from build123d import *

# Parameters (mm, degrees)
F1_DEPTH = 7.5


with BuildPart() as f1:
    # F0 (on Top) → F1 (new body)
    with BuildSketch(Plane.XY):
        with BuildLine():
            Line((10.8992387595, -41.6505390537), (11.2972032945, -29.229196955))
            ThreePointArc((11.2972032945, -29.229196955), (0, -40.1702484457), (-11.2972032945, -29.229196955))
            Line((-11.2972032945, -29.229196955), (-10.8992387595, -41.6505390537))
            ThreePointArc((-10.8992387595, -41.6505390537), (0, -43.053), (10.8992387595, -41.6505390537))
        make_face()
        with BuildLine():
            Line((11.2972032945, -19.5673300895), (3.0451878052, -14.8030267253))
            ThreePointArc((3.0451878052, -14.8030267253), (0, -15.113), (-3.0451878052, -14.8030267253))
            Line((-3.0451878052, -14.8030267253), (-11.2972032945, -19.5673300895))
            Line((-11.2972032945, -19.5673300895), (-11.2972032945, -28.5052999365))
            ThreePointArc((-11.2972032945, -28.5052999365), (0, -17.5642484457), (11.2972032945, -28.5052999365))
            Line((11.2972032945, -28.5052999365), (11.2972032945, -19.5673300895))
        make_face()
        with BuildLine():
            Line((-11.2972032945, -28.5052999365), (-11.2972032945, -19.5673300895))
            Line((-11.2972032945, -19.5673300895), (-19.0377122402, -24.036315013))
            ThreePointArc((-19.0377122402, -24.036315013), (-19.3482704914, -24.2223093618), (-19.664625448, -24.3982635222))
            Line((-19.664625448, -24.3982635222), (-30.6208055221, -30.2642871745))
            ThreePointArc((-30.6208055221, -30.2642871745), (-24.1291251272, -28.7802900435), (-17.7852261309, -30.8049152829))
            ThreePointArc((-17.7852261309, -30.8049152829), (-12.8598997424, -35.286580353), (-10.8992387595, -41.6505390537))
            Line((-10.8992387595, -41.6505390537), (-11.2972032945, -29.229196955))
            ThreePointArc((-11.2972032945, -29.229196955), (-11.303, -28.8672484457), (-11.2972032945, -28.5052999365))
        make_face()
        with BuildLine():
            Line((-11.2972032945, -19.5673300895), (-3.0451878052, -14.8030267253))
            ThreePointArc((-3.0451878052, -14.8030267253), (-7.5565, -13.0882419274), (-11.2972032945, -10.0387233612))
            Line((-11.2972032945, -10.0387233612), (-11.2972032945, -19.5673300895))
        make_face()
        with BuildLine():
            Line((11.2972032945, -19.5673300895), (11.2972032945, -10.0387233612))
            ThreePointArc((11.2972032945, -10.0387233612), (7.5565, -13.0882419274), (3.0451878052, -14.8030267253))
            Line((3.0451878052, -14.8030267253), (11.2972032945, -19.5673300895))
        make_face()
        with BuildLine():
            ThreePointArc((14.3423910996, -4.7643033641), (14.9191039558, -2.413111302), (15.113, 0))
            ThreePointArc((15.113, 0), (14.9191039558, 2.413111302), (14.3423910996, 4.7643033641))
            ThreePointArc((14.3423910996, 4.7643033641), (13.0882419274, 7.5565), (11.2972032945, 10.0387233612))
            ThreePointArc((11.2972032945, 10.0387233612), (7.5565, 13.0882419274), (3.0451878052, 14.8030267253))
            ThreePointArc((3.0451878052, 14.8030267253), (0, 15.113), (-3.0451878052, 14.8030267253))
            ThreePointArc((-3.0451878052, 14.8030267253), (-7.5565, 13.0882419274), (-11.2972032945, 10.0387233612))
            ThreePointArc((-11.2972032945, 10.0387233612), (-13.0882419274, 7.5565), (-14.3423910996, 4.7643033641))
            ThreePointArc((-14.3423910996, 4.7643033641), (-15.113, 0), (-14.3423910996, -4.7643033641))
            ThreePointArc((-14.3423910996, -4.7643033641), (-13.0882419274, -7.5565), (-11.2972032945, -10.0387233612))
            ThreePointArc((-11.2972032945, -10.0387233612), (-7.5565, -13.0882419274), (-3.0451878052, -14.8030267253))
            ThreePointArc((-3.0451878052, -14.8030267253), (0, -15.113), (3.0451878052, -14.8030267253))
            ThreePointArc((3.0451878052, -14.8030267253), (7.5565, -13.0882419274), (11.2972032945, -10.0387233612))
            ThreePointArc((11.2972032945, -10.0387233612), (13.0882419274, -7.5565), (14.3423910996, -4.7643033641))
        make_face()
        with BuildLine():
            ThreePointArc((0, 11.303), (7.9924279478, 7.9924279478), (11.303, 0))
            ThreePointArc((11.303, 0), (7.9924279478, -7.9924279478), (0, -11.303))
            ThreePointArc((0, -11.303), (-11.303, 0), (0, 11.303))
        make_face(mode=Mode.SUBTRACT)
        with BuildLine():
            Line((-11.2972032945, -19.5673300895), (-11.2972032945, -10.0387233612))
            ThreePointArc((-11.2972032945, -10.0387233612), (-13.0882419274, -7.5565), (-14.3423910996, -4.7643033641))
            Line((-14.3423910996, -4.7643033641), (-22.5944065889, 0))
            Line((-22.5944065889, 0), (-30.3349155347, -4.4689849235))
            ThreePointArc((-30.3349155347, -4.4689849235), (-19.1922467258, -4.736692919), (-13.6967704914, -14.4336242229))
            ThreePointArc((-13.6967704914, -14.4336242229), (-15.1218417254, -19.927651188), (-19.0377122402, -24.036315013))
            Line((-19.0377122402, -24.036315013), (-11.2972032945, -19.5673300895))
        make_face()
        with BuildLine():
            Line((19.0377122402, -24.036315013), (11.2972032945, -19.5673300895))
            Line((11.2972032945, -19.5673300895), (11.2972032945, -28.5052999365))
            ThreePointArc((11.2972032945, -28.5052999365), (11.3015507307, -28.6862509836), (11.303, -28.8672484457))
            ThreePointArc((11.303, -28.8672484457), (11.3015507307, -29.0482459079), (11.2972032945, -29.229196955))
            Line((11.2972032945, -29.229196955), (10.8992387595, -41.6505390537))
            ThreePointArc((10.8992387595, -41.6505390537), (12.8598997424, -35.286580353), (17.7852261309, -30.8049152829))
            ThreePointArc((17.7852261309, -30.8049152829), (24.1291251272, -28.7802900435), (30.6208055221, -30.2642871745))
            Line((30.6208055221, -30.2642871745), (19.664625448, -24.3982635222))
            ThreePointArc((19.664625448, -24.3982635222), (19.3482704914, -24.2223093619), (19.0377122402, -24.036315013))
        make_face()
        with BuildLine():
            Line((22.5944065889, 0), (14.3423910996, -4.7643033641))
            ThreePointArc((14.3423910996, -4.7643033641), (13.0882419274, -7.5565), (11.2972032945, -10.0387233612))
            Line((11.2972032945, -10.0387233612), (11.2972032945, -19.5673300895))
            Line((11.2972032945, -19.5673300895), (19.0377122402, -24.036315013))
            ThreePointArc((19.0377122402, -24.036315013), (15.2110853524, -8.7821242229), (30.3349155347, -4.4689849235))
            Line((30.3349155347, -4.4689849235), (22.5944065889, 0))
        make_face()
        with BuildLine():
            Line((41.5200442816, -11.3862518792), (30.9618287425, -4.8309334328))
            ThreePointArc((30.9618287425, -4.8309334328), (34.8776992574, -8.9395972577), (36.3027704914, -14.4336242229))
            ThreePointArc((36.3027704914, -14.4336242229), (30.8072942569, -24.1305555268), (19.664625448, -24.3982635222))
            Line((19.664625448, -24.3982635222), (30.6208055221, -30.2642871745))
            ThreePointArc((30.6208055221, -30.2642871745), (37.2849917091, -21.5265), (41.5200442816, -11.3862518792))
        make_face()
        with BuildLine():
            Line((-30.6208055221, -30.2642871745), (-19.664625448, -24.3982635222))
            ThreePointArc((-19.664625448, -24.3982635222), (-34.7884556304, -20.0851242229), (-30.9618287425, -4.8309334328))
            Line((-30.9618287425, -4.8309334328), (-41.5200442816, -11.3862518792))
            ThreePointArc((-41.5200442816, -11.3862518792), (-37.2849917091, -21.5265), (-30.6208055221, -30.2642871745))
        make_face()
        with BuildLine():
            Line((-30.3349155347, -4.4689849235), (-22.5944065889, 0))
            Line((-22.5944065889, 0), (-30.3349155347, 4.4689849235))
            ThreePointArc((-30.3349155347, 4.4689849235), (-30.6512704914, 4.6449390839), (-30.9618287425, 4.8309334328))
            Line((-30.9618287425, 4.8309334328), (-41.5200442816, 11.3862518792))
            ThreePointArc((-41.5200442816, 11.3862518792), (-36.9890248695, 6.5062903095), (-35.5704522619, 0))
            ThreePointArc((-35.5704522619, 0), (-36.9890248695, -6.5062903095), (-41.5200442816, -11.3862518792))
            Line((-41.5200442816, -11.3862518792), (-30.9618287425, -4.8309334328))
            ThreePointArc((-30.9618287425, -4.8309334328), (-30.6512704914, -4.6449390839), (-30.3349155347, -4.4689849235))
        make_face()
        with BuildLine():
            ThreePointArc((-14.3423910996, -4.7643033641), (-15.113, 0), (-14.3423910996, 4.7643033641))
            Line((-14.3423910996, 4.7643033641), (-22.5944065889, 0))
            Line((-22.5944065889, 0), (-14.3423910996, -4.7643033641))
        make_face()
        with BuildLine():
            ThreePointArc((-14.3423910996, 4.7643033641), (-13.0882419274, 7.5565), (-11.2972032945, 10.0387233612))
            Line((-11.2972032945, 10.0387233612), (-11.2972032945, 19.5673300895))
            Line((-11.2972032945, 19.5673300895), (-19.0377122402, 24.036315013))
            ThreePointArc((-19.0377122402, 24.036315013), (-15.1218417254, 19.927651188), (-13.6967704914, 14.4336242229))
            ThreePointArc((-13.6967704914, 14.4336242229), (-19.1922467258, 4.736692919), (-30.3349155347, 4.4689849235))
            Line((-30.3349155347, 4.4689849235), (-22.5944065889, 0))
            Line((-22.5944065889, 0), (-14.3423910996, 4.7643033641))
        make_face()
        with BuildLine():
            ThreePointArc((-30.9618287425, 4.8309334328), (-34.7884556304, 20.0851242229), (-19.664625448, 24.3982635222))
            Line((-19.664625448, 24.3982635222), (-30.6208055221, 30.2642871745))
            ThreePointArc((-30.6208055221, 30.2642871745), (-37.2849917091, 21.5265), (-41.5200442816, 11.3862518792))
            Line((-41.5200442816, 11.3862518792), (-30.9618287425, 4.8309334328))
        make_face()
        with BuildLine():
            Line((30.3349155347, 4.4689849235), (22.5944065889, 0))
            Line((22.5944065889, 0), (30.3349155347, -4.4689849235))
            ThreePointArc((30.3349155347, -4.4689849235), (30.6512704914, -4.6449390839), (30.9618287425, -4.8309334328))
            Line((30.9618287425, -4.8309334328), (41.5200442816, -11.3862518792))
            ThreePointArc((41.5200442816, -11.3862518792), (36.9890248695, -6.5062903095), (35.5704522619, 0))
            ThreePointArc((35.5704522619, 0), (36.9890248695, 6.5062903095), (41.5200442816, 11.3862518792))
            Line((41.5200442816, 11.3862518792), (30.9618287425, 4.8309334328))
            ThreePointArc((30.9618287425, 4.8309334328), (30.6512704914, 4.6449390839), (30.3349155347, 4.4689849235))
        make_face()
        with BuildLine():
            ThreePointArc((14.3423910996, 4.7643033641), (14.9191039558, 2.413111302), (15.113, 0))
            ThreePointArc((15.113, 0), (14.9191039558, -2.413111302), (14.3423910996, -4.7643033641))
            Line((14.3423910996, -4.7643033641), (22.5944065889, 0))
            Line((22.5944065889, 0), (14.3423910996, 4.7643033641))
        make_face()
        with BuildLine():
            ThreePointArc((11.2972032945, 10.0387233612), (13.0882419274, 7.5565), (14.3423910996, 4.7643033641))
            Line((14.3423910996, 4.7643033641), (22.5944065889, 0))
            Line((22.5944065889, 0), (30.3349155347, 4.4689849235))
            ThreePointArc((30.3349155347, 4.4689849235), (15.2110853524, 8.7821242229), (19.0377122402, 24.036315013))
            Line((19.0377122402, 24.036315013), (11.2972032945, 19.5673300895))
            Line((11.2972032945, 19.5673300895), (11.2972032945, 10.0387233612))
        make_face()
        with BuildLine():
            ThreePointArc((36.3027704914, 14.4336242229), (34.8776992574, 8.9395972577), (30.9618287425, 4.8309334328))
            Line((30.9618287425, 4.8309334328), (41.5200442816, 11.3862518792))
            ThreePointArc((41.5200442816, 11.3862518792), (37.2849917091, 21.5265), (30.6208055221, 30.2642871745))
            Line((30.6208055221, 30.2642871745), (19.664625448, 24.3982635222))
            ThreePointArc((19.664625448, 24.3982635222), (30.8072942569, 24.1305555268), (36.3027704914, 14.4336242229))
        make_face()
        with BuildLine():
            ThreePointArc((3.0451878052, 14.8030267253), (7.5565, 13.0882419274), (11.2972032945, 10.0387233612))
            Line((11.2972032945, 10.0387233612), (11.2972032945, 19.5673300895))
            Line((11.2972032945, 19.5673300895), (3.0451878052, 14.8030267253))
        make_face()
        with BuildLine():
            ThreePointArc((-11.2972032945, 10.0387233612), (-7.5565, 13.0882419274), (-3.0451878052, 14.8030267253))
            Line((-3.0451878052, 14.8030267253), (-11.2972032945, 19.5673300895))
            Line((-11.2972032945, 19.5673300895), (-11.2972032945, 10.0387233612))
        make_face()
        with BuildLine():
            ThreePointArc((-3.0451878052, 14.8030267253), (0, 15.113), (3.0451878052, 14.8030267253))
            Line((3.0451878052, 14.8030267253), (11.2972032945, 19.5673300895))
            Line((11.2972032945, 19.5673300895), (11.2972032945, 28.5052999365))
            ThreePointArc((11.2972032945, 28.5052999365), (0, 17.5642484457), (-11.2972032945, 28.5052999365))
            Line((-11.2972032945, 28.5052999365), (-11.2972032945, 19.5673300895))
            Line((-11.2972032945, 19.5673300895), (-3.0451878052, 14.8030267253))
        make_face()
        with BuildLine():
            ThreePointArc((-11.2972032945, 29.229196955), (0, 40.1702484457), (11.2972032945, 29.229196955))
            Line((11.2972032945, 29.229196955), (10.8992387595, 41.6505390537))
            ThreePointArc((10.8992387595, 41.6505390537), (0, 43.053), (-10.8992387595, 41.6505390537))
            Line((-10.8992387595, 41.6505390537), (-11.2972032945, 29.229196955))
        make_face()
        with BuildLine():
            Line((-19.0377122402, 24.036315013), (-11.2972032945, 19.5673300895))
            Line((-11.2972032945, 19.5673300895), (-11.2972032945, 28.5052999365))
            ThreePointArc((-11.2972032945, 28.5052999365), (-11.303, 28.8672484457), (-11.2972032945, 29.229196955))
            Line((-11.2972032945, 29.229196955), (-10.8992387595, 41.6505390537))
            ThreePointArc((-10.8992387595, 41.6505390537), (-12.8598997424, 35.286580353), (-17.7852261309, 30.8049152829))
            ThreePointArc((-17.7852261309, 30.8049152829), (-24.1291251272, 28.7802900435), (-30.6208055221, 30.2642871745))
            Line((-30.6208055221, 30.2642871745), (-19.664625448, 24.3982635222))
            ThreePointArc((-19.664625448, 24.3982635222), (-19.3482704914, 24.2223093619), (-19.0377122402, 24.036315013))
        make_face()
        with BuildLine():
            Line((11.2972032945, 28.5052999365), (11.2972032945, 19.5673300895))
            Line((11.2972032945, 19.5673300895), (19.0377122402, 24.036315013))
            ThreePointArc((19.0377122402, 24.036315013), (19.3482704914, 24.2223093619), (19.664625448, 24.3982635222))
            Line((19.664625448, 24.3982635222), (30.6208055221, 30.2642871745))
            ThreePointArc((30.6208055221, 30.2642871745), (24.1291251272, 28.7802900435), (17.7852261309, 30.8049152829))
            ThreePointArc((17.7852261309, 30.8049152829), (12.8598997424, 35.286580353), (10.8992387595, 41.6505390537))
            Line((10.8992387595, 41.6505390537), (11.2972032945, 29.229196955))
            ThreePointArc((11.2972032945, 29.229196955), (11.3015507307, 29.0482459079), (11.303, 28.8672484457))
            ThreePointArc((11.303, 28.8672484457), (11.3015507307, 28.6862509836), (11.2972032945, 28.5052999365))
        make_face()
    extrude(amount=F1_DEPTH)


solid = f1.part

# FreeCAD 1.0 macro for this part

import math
import FreeCAD as App
import Part
import Sketcher
Q = App.Units.Quantity

doc = App.newDocument("Part")
body = doc.addObject("PartDesign::Body", "Body")

# Sketch on XY plane
sketch1 = body.newObject("Sketcher::SketchObject", "Sketch")
sketch1.AttachmentSupport = (doc.getObject("XY_Plane"), [""])
sketch1.MapMode = "FlatFace"
sketch1.addGeometry([
    Part.ArcOfCircle(Part.Circle(App.Vector(0, 0, 0), App.Vector(0, 0, 1), 43.05), math.radians(135), math.radians(165)),  # 0
    Part.ArcOfCircle(Part.Circle(App.Vector(-48.18, 0.66, 0), App.Vector(0, 0, 1), 12.63), math.radians(-3), math.radians(58)),  # 1
    Part.ArcOfCircle(Part.Circle(App.Vector(-48.18, -0.66, 0), App.Vector(0, 0, 1), 12.63), math.radians(-58), math.radians(3)),  # 2
    Part.ArcOfCircle(Part.Circle(App.Vector(0, 0, 0), App.Vector(0, 0, 1), 43.05), math.radians(-165), math.radians(-135)),  # 3
    Part.ArcOfCircle(Part.Circle(App.Vector(-24.66, -41.4, 0), App.Vector(0, 0, 1), 12.63), math.radians(57), math.radians(118)),  # 4
    Part.ArcOfCircle(Part.Circle(App.Vector(-23.52, -42.05, 0), App.Vector(0, 0, 1), 12.63), math.radians(2), math.radians(63)),  # 5
    Part.ArcOfCircle(Part.Circle(App.Vector(0, 0, 0), App.Vector(0, 0, 1), 43.05), math.radians(-105), math.radians(-75)),  # 6
    Part.ArcOfCircle(Part.Circle(App.Vector(23.52, -42.05, 0), App.Vector(0, 0, 1), 12.63), math.radians(117), math.radians(178)),  # 7
    Part.ArcOfCircle(Part.Circle(App.Vector(24.66, -41.4, 0), App.Vector(0, 0, 1), 12.63), math.radians(62), math.radians(123)),  # 8
    Part.ArcOfCircle(Part.Circle(App.Vector(0, 0, 0), App.Vector(0, 0, 1), 43.05), math.radians(-45), math.radians(-15)),  # 9
    Part.ArcOfCircle(Part.Circle(App.Vector(48.18, -0.66, 0), App.Vector(0, 0, 1), 12.63), math.radians(177), math.radians(238)),  # 10
    Part.ArcOfCircle(Part.Circle(App.Vector(48.18, 0.66, 0), App.Vector(0, 0, 1), 12.63), math.radians(122), math.radians(183)),  # 11
    Part.ArcOfCircle(Part.Circle(App.Vector(0, 0, 0), App.Vector(0, 0, 1), 43.05), math.radians(15), math.radians(45)),  # 12
    Part.ArcOfCircle(Part.Circle(App.Vector(24.66, 41.4, 0), App.Vector(0, 0, 1), 12.63), math.radians(-123), math.radians(-62)),  # 13
    Part.ArcOfCircle(Part.Circle(App.Vector(23.52, 42.05, 0), App.Vector(0, 0, 1), 12.63), math.radians(-178), math.radians(-117)),  # 14
    Part.ArcOfCircle(Part.Circle(App.Vector(0, 0, 0), App.Vector(0, 0, 1), 43.05), math.radians(75), math.radians(105)),  # 15
    Part.ArcOfCircle(Part.Circle(App.Vector(-23.52, 42.05, 0), App.Vector(0, 0, 1), 12.63), math.radians(-63), math.radians(-2)),  # 16
    Part.ArcOfCircle(Part.Circle(App.Vector(-24.66, 41.4, 0), App.Vector(0, 0, 1), 12.63), math.radians(-118), math.radians(-57)),  # 17
    Part.ArcOfCircle(Part.Circle(App.Vector(0, -28.87, 0), App.Vector(0, 0, 1), 11.3), math.radians(-178), math.radians(-2)),  # 18
    Part.ArcOfCircle(Part.Circle(App.Vector(0, -28.87, 0), App.Vector(0, 0, 1), 11.3), math.radians(178.16), math.radians(181.84)),  # 19
    Part.ArcOfCircle(Part.Circle(App.Vector(0, -28.87, 0), App.Vector(0, 0, 1), 11.3), math.radians(2), math.radians(178)),  # 20
    Part.ArcOfCircle(Part.Circle(App.Vector(0, -28.87, 0), App.Vector(0, 0, 1), 11.3), math.radians(0), math.radians(1.84)),  # 21
    Part.ArcOfCircle(Part.Circle(App.Vector(0, -28.87, 0), App.Vector(0, 0, 1), 11.3), math.radians(-1.84), math.radians(0)),  # 22
    Part.ArcOfCircle(Part.Circle(App.Vector(-25, 14.43, 0), App.Vector(0, 0, 1), 11.3), math.radians(0), math.radians(58)),  # 23
    Part.ArcOfCircle(Part.Circle(App.Vector(-25, 14.43, 0), App.Vector(0, 0, 1), 11.3), math.radians(-118), math.radians(0)),  # 24
    Part.ArcOfCircle(Part.Circle(App.Vector(-25, 14.43, 0), App.Vector(0, 0, 1), 11.3), math.radians(-121.84), math.radians(-118.16)),  # 25
    Part.ArcOfCircle(Part.Circle(App.Vector(-25, 14.43, 0), App.Vector(0, 0, 1), 11.3), math.radians(62), math.radians(238)),  # 26
    Part.ArcOfCircle(Part.Circle(App.Vector(-25, 14.43, 0), App.Vector(0, 0, 1), 11.3), math.radians(58.16), math.radians(61.84)),  # 27
    Part.ArcOfCircle(Part.Circle(App.Vector(25, 14.43, 0), App.Vector(0, 0, 1), 11.3), math.radians(0), math.radians(118)),  # 28
    Part.ArcOfCircle(Part.Circle(App.Vector(25, 14.43, 0), App.Vector(0, 0, 1), 11.3), math.radians(-58), math.radians(0)),  # 29
    Part.ArcOfCircle(Part.Circle(App.Vector(25, 14.43, 0), App.Vector(0, 0, 1), 11.3), math.radians(-61.84), math.radians(-58.16)),  # 30
    Part.ArcOfCircle(Part.Circle(App.Vector(25, 14.43, 0), App.Vector(0, 0, 1), 11.3), math.radians(122), math.radians(298)),  # 31
    Part.ArcOfCircle(Part.Circle(App.Vector(25, 14.43, 0), App.Vector(0, 0, 1), 11.3), math.radians(118.16), math.radians(121.84)),  # 32
    Part.ArcOfCircle(Part.Circle(App.Vector(0, 28.87, 0), App.Vector(0, 0, 1), 11.3), math.radians(-178), math.radians(-2)),  # 33
    Part.ArcOfCircle(Part.Circle(App.Vector(0, 28.87, 0), App.Vector(0, 0, 1), 11.3), math.radians(178.16), math.radians(181.84)),  # 34
    Part.ArcOfCircle(Part.Circle(App.Vector(0, 28.87, 0), App.Vector(0, 0, 1), 11.3), math.radians(2), math.radians(178)),  # 35
    Part.ArcOfCircle(Part.Circle(App.Vector(0, 28.87, 0), App.Vector(0, 0, 1), 11.3), math.radians(0), math.radians(1.84)),  # 36
    Part.ArcOfCircle(Part.Circle(App.Vector(0, 28.87, 0), App.Vector(0, 0, 1), 11.3), math.radians(-1.84), math.radians(0)),  # 37
    Part.ArcOfCircle(Part.Circle(App.Vector(25, -14.43, 0), App.Vector(0, 0, 1), 11.3), math.radians(0), math.radians(58)),  # 38
    Part.ArcOfCircle(Part.Circle(App.Vector(25, -14.43, 0), App.Vector(0, 0, 1), 11.3), math.radians(-118), math.radians(0)),  # 39
    Part.ArcOfCircle(Part.Circle(App.Vector(25, -14.43, 0), App.Vector(0, 0, 1), 11.3), math.radians(-121.84), math.radians(-118.16)),  # 40
    Part.ArcOfCircle(Part.Circle(App.Vector(25, -14.43, 0), App.Vector(0, 0, 1), 11.3), math.radians(62), math.radians(238)),  # 41
    Part.ArcOfCircle(Part.Circle(App.Vector(25, -14.43, 0), App.Vector(0, 0, 1), 11.3), math.radians(58.16), math.radians(61.84)),  # 42
    Part.ArcOfCircle(Part.Circle(App.Vector(-25, -14.43, 0), App.Vector(0, 0, 1), 11.3), math.radians(0), math.radians(118)),  # 43
    Part.ArcOfCircle(Part.Circle(App.Vector(-25, -14.43, 0), App.Vector(0, 0, 1), 11.3), math.radians(-58), math.radians(0)),  # 44
    Part.ArcOfCircle(Part.Circle(App.Vector(-25, -14.43, 0), App.Vector(0, 0, 1), 11.3), math.radians(-61.84), math.radians(-58.16)),  # 45
    Part.ArcOfCircle(Part.Circle(App.Vector(-25, -14.43, 0), App.Vector(0, 0, 1), 11.3), math.radians(122), math.radians(298)),  # 46
    Part.ArcOfCircle(Part.Circle(App.Vector(-25, -14.43, 0), App.Vector(0, 0, 1), 11.3), math.radians(118.16), math.radians(121.84)),  # 47
    Part.ArcOfCircle(Part.Circle(App.Vector(0, 0, 0), App.Vector(0, 0, 1), 11.3), math.radians(90), math.radians(270)),  # 48
    Part.ArcOfCircle(Part.Circle(App.Vector(0, 0, 0), App.Vector(0, 0, 1), 11.3), math.radians(0), math.radians(90)),  # 49
    Part.ArcOfCircle(Part.Circle(App.Vector(0, 0, 0), App.Vector(0, 0, 1), 11.3), math.radians(-90), math.radians(0)),  # 50
], False)
sketch1.addConstraint([
    Sketcher.Constraint("Coincident", 0, 2, 1, 2),
    Sketcher.Constraint("Coincident", 1, 1, 2, 2),
    Sketcher.Constraint("Coincident", 2, 1, 3, 1),
    Sketcher.Constraint("Coincident", 3, 2, 4, 2),
    Sketcher.Constraint("Coincident", 4, 1, 5, 2),
    Sketcher.Constraint("Coincident", 5, 1, 6, 1),
    Sketcher.Constraint("Coincident", 6, 2, 7, 2),
    Sketcher.Constraint("Coincident", 7, 1, 8, 2),
    Sketcher.Constraint("Coincident", 8, 1, 9, 1),
    Sketcher.Constraint("Coincident", 9, 2, 10, 2),
    Sketcher.Constraint("Coincident", 10, 1, 11, 2),
    Sketcher.Constraint("Coincident", 11, 1, 12, 1),
    Sketcher.Constraint("Coincident", 12, 2, 13, 2),
    Sketcher.Constraint("Coincident", 13, 1, 14, 2),
    Sketcher.Constraint("Coincident", 14, 1, 15, 1),
    Sketcher.Constraint("Coincident", 15, 2, 16, 2),
    Sketcher.Constraint("Coincident", 16, 1, 17, 2),
    Sketcher.Constraint("Coincident", 17, 1, 0, 1),
    Sketcher.Constraint("Tangent", 18, 1, 19, 2),
    Sketcher.Constraint("Tangent", 19, 1, 20, 2),
    Sketcher.Constraint("Tangent", 20, 1, 21, 2),
    Sketcher.Constraint("Tangent", 21, 1, 22, 2),
    Sketcher.Constraint("Tangent", 22, 1, 18, 2),
    Sketcher.Constraint("Tangent", 23, 1, 24, 2),
    Sketcher.Constraint("Tangent", 24, 1, 25, 2),
    Sketcher.Constraint("Tangent", 25, 1, 26, 2),
    Sketcher.Constraint("Tangent", 26, 1, 27, 2),
    Sketcher.Constraint("Tangent", 27, 1, 23, 2),
    Sketcher.Constraint("Tangent", 28, 1, 29, 2),
    Sketcher.Constraint("Tangent", 29, 1, 30, 2),
    Sketcher.Constraint("Tangent", 30, 1, 31, 2),
    Sketcher.Constraint("Tangent", 31, 1, 32, 2),
    Sketcher.Constraint("Tangent", 32, 1, 28, 2),
    Sketcher.Constraint("Tangent", 33, 1, 34, 2),
    Sketcher.Constraint("Tangent", 34, 1, 35, 2),
    Sketcher.Constraint("Tangent", 35, 1, 36, 2),
    Sketcher.Constraint("Tangent", 36, 1, 37, 2),
    Sketcher.Constraint("Tangent", 37, 1, 33, 2),
    Sketcher.Constraint("Tangent", 38, 1, 39, 2),
    Sketcher.Constraint("Tangent", 39, 1, 40, 2),
    Sketcher.Constraint("Tangent", 40, 1, 41, 2),
    Sketcher.Constraint("Tangent", 41, 1, 42, 2),
    Sketcher.Constraint("Tangent", 42, 1, 38, 2),
    Sketcher.Constraint("Tangent", 43, 1, 44, 2),
    Sketcher.Constraint("Tangent", 44, 1, 45, 2),
    Sketcher.Constraint("Tangent", 45, 1, 46, 2),
    Sketcher.Constraint("Tangent", 46, 1, 47, 2),
    Sketcher.Constraint("Tangent", 47, 1, 43, 2),
    Sketcher.Constraint("Tangent", 48, 1, 49, 2),
    Sketcher.Constraint("Tangent", 49, 1, 50, 2),
    Sketcher.Constraint("Tangent", 50, 1, 48, 2),
    Sketcher.Constraint("Coincident", 0, 3, -1, 1),
    Sketcher.Constraint("Coincident", 3, 3, -1, 1),
    Sketcher.Constraint("Coincident", 6, 3, -1, 1),
    Sketcher.Constraint("Coincident", 9, 3, -1, 1),
    Sketcher.Constraint("Coincident", 12, 3, -1, 1),
    Sketcher.Constraint("Coincident", 15, 3, -1, 1),
    Sketcher.Constraint("Coincident", 48, 3, -1, 1),
    Sketcher.Constraint("Coincident", 21, 3, 18, 3),
    Sketcher.Constraint("Coincident", 25, 3, 23, 3),
    Sketcher.Constraint("Coincident", 30, 3, 28, 3),
    Sketcher.Constraint("Coincident", 36, 3, 33, 3),
    Sketcher.Constraint("Coincident", 40, 3, 38, 3),
    Sketcher.Constraint("Coincident", 45, 3, 43, 3),
    Sketcher.Constraint("Equal", 1, 2),
    Sketcher.Constraint("Equal", 0, 3),
    Sketcher.Constraint("Equal", 2, 4),
    Sketcher.Constraint("Equal", 4, 5),
    Sketcher.Constraint("Equal", 3, 6),
    Sketcher.Constraint("Equal", 5, 7),
    Sketcher.Constraint("Equal", 7, 8),
    Sketcher.Constraint("Equal", 6, 9),
    Sketcher.Constraint("Equal", 8, 10),
    Sketcher.Constraint("Equal", 10, 11),
    Sketcher.Constraint("Equal", 9, 12),
    Sketcher.Constraint("Equal", 11, 13),
    Sketcher.Constraint("Equal", 13, 14),
    Sketcher.Constraint("Equal", 12, 15),
    Sketcher.Constraint("Equal", 14, 16),
    Sketcher.Constraint("Equal", 16, 17),
    Sketcher.Constraint("Equal", 22, 23),
    Sketcher.Constraint("Equal", 27, 28),
    Sketcher.Constraint("Equal", 32, 33),
    Sketcher.Constraint("Equal", 37, 38),
    Sketcher.Constraint("Equal", 42, 43),
    Sketcher.Constraint("Equal", 47, 48),
    Sketcher.Constraint("Symmetric", 1, 3, 10, 3, -1, 1),
    Sketcher.Constraint("Symmetric", 2, 3, 11, 3, -1, 1),
    Sketcher.Constraint("Symmetric", 4, 3, 13, 3, -1, 1),
    Sketcher.Constraint("Symmetric", 5, 3, 14, 3, -1, 1),
    Sketcher.Constraint("Symmetric", 7, 3, 16, 3, -1, 1),
    Sketcher.Constraint("Symmetric", 8, 3, 17, 3, -1, 1),
    Sketcher.Constraint("Symmetric", 18, 3, 33, 3, -1, 1),
    Sketcher.Constraint("Symmetric", 23, 3, 38, 3, -1, 1),
    Sketcher.Constraint("Symmetric", 28, 3, 43, 3, -1, 1),
    Sketcher.Constraint("Symmetric", 5, 3, 7, 3, -2),
    Sketcher.Constraint("Symmetric", 4, 3, 8, 3, -2),
    Sketcher.Constraint("Symmetric", 2, 3, 10, 3, -2),
    Sketcher.Constraint("Symmetric", 23, 3, 28, 3, -2),
    Sketcher.Constraint("Symmetric", 19, 1, 20, 1, -2),
    Sketcher.Constraint("PointOnObject", 48, 1, -2),
    Sketcher.Constraint("PointOnObject", 49, 1, -1),
    Sketcher.Constraint("PointOnObject", 50, 1, -2),
    Sketcher.Constraint("Horizontal", 22, 3, 21, 1),
    Sketcher.Constraint("Horizontal", 18, 1, 22, 1),
    Sketcher.Constraint("Horizontal", 32, 3, 23, 1),
    Sketcher.Constraint("Horizontal", 23, 1, 28, 1),
    Sketcher.Constraint("Horizontal", 25, 1, 29, 1),
    Sketcher.Constraint("Horizontal", 24, 1, 30, 1),
    Sketcher.Constraint("Horizontal", 27, 1, 31, 1),
    Sketcher.Constraint("Horizontal", 26, 1, 32, 1),
    Sketcher.Constraint("Horizontal", 34, 1, 35, 1),
    Sketcher.Constraint("Horizontal", 37, 3, 36, 1),
    Sketcher.Constraint("Horizontal", 33, 1, 37, 1),
    Sketcher.Constraint("Horizontal", 47, 3, 38, 1),
    Sketcher.Constraint("Horizontal", 38, 1, 43, 1),
    Sketcher.Constraint("Horizontal", 40, 1, 44, 1),
    Sketcher.Constraint("Horizontal", 39, 1, 45, 1),
    Sketcher.Constraint("Horizontal", 42, 1, 46, 1),
    Sketcher.Constraint("Horizontal", 41, 1, 47, 1),
    Sketcher.Constraint("Vertical", 18, 1, 19, 1),
    Sketcher.Constraint("Vertical", 19, 1, 33, 1),
    Sketcher.Constraint("Vertical", 33, 1, 34, 1),
    Sketcher.Constraint("Vertical", 32, 1, 39, 1),
    Sketcher.Constraint("Vertical", 31, 1, 40, 1),
    Sketcher.Constraint("Vertical", 30, 1, 41, 1),
    Sketcher.Constraint("Vertical", 29, 1, 42, 1),
    Sketcher.Constraint("Radius", 0, Q("1.695 in")),
    Sketcher.Constraint("Radius", 18, Q("0.445 in")),
    Sketcher.Constraint("Radius", 1, Q("12.627429 mm")),
    Sketcher.Constraint("DistanceY", 5, 3, -1, 1, Q("42.054899 mm")),
    Sketcher.Constraint("DistanceY", 19, 1, -1, 1, Q("28.5053 mm")),
    Sketcher.Constraint("DistanceX", 5, 3, -1, 1, Q("23.520192 mm")),
    Sketcher.Constraint("DistanceY", 18, 3, -1, 1, Q("28.867248 mm")),
    Sketcher.Constraint("DistanceX", 23, 3, -1, 1, Q("24.99977 mm")),
    Sketcher.Constraint("DistanceY", -1, 1, 0, 2, Q("11.386252 mm")),
    Sketcher.Constraint("DistanceX", 25, 1, -1, 1, Q("30.961829 mm")),
    Sketcher.Constraint("DistanceX", 1, 3, -1, 1, Q("48.180707 mm")),
    Sketcher.Constraint("DistanceX", 4, 3, -1, 1, Q("24.660515 mm")),
    Sketcher.Constraint("DistanceY", 4, 3, -1, 1, Q("41.396533 mm")),
    Sketcher.Constraint("DistanceY", -1, 1, 23, 3, Q("14.433624 mm")),
    Sketcher.Constraint("DistanceX", 24, 1, -1, 1, Q("30.334916 mm")),
    Sketcher.Constraint("DistanceX", 26, 1, -1, 1, Q("19.664625 mm")),
    Sketcher.Constraint("DistanceX", 27, 1, -1, 1, Q("19.037712 mm")),
])
pad1 = body.newObject("PartDesign::Pad", "Pad")
pad1.Profile = sketch1
pad1.Length = 7.5

doc.recompute()
